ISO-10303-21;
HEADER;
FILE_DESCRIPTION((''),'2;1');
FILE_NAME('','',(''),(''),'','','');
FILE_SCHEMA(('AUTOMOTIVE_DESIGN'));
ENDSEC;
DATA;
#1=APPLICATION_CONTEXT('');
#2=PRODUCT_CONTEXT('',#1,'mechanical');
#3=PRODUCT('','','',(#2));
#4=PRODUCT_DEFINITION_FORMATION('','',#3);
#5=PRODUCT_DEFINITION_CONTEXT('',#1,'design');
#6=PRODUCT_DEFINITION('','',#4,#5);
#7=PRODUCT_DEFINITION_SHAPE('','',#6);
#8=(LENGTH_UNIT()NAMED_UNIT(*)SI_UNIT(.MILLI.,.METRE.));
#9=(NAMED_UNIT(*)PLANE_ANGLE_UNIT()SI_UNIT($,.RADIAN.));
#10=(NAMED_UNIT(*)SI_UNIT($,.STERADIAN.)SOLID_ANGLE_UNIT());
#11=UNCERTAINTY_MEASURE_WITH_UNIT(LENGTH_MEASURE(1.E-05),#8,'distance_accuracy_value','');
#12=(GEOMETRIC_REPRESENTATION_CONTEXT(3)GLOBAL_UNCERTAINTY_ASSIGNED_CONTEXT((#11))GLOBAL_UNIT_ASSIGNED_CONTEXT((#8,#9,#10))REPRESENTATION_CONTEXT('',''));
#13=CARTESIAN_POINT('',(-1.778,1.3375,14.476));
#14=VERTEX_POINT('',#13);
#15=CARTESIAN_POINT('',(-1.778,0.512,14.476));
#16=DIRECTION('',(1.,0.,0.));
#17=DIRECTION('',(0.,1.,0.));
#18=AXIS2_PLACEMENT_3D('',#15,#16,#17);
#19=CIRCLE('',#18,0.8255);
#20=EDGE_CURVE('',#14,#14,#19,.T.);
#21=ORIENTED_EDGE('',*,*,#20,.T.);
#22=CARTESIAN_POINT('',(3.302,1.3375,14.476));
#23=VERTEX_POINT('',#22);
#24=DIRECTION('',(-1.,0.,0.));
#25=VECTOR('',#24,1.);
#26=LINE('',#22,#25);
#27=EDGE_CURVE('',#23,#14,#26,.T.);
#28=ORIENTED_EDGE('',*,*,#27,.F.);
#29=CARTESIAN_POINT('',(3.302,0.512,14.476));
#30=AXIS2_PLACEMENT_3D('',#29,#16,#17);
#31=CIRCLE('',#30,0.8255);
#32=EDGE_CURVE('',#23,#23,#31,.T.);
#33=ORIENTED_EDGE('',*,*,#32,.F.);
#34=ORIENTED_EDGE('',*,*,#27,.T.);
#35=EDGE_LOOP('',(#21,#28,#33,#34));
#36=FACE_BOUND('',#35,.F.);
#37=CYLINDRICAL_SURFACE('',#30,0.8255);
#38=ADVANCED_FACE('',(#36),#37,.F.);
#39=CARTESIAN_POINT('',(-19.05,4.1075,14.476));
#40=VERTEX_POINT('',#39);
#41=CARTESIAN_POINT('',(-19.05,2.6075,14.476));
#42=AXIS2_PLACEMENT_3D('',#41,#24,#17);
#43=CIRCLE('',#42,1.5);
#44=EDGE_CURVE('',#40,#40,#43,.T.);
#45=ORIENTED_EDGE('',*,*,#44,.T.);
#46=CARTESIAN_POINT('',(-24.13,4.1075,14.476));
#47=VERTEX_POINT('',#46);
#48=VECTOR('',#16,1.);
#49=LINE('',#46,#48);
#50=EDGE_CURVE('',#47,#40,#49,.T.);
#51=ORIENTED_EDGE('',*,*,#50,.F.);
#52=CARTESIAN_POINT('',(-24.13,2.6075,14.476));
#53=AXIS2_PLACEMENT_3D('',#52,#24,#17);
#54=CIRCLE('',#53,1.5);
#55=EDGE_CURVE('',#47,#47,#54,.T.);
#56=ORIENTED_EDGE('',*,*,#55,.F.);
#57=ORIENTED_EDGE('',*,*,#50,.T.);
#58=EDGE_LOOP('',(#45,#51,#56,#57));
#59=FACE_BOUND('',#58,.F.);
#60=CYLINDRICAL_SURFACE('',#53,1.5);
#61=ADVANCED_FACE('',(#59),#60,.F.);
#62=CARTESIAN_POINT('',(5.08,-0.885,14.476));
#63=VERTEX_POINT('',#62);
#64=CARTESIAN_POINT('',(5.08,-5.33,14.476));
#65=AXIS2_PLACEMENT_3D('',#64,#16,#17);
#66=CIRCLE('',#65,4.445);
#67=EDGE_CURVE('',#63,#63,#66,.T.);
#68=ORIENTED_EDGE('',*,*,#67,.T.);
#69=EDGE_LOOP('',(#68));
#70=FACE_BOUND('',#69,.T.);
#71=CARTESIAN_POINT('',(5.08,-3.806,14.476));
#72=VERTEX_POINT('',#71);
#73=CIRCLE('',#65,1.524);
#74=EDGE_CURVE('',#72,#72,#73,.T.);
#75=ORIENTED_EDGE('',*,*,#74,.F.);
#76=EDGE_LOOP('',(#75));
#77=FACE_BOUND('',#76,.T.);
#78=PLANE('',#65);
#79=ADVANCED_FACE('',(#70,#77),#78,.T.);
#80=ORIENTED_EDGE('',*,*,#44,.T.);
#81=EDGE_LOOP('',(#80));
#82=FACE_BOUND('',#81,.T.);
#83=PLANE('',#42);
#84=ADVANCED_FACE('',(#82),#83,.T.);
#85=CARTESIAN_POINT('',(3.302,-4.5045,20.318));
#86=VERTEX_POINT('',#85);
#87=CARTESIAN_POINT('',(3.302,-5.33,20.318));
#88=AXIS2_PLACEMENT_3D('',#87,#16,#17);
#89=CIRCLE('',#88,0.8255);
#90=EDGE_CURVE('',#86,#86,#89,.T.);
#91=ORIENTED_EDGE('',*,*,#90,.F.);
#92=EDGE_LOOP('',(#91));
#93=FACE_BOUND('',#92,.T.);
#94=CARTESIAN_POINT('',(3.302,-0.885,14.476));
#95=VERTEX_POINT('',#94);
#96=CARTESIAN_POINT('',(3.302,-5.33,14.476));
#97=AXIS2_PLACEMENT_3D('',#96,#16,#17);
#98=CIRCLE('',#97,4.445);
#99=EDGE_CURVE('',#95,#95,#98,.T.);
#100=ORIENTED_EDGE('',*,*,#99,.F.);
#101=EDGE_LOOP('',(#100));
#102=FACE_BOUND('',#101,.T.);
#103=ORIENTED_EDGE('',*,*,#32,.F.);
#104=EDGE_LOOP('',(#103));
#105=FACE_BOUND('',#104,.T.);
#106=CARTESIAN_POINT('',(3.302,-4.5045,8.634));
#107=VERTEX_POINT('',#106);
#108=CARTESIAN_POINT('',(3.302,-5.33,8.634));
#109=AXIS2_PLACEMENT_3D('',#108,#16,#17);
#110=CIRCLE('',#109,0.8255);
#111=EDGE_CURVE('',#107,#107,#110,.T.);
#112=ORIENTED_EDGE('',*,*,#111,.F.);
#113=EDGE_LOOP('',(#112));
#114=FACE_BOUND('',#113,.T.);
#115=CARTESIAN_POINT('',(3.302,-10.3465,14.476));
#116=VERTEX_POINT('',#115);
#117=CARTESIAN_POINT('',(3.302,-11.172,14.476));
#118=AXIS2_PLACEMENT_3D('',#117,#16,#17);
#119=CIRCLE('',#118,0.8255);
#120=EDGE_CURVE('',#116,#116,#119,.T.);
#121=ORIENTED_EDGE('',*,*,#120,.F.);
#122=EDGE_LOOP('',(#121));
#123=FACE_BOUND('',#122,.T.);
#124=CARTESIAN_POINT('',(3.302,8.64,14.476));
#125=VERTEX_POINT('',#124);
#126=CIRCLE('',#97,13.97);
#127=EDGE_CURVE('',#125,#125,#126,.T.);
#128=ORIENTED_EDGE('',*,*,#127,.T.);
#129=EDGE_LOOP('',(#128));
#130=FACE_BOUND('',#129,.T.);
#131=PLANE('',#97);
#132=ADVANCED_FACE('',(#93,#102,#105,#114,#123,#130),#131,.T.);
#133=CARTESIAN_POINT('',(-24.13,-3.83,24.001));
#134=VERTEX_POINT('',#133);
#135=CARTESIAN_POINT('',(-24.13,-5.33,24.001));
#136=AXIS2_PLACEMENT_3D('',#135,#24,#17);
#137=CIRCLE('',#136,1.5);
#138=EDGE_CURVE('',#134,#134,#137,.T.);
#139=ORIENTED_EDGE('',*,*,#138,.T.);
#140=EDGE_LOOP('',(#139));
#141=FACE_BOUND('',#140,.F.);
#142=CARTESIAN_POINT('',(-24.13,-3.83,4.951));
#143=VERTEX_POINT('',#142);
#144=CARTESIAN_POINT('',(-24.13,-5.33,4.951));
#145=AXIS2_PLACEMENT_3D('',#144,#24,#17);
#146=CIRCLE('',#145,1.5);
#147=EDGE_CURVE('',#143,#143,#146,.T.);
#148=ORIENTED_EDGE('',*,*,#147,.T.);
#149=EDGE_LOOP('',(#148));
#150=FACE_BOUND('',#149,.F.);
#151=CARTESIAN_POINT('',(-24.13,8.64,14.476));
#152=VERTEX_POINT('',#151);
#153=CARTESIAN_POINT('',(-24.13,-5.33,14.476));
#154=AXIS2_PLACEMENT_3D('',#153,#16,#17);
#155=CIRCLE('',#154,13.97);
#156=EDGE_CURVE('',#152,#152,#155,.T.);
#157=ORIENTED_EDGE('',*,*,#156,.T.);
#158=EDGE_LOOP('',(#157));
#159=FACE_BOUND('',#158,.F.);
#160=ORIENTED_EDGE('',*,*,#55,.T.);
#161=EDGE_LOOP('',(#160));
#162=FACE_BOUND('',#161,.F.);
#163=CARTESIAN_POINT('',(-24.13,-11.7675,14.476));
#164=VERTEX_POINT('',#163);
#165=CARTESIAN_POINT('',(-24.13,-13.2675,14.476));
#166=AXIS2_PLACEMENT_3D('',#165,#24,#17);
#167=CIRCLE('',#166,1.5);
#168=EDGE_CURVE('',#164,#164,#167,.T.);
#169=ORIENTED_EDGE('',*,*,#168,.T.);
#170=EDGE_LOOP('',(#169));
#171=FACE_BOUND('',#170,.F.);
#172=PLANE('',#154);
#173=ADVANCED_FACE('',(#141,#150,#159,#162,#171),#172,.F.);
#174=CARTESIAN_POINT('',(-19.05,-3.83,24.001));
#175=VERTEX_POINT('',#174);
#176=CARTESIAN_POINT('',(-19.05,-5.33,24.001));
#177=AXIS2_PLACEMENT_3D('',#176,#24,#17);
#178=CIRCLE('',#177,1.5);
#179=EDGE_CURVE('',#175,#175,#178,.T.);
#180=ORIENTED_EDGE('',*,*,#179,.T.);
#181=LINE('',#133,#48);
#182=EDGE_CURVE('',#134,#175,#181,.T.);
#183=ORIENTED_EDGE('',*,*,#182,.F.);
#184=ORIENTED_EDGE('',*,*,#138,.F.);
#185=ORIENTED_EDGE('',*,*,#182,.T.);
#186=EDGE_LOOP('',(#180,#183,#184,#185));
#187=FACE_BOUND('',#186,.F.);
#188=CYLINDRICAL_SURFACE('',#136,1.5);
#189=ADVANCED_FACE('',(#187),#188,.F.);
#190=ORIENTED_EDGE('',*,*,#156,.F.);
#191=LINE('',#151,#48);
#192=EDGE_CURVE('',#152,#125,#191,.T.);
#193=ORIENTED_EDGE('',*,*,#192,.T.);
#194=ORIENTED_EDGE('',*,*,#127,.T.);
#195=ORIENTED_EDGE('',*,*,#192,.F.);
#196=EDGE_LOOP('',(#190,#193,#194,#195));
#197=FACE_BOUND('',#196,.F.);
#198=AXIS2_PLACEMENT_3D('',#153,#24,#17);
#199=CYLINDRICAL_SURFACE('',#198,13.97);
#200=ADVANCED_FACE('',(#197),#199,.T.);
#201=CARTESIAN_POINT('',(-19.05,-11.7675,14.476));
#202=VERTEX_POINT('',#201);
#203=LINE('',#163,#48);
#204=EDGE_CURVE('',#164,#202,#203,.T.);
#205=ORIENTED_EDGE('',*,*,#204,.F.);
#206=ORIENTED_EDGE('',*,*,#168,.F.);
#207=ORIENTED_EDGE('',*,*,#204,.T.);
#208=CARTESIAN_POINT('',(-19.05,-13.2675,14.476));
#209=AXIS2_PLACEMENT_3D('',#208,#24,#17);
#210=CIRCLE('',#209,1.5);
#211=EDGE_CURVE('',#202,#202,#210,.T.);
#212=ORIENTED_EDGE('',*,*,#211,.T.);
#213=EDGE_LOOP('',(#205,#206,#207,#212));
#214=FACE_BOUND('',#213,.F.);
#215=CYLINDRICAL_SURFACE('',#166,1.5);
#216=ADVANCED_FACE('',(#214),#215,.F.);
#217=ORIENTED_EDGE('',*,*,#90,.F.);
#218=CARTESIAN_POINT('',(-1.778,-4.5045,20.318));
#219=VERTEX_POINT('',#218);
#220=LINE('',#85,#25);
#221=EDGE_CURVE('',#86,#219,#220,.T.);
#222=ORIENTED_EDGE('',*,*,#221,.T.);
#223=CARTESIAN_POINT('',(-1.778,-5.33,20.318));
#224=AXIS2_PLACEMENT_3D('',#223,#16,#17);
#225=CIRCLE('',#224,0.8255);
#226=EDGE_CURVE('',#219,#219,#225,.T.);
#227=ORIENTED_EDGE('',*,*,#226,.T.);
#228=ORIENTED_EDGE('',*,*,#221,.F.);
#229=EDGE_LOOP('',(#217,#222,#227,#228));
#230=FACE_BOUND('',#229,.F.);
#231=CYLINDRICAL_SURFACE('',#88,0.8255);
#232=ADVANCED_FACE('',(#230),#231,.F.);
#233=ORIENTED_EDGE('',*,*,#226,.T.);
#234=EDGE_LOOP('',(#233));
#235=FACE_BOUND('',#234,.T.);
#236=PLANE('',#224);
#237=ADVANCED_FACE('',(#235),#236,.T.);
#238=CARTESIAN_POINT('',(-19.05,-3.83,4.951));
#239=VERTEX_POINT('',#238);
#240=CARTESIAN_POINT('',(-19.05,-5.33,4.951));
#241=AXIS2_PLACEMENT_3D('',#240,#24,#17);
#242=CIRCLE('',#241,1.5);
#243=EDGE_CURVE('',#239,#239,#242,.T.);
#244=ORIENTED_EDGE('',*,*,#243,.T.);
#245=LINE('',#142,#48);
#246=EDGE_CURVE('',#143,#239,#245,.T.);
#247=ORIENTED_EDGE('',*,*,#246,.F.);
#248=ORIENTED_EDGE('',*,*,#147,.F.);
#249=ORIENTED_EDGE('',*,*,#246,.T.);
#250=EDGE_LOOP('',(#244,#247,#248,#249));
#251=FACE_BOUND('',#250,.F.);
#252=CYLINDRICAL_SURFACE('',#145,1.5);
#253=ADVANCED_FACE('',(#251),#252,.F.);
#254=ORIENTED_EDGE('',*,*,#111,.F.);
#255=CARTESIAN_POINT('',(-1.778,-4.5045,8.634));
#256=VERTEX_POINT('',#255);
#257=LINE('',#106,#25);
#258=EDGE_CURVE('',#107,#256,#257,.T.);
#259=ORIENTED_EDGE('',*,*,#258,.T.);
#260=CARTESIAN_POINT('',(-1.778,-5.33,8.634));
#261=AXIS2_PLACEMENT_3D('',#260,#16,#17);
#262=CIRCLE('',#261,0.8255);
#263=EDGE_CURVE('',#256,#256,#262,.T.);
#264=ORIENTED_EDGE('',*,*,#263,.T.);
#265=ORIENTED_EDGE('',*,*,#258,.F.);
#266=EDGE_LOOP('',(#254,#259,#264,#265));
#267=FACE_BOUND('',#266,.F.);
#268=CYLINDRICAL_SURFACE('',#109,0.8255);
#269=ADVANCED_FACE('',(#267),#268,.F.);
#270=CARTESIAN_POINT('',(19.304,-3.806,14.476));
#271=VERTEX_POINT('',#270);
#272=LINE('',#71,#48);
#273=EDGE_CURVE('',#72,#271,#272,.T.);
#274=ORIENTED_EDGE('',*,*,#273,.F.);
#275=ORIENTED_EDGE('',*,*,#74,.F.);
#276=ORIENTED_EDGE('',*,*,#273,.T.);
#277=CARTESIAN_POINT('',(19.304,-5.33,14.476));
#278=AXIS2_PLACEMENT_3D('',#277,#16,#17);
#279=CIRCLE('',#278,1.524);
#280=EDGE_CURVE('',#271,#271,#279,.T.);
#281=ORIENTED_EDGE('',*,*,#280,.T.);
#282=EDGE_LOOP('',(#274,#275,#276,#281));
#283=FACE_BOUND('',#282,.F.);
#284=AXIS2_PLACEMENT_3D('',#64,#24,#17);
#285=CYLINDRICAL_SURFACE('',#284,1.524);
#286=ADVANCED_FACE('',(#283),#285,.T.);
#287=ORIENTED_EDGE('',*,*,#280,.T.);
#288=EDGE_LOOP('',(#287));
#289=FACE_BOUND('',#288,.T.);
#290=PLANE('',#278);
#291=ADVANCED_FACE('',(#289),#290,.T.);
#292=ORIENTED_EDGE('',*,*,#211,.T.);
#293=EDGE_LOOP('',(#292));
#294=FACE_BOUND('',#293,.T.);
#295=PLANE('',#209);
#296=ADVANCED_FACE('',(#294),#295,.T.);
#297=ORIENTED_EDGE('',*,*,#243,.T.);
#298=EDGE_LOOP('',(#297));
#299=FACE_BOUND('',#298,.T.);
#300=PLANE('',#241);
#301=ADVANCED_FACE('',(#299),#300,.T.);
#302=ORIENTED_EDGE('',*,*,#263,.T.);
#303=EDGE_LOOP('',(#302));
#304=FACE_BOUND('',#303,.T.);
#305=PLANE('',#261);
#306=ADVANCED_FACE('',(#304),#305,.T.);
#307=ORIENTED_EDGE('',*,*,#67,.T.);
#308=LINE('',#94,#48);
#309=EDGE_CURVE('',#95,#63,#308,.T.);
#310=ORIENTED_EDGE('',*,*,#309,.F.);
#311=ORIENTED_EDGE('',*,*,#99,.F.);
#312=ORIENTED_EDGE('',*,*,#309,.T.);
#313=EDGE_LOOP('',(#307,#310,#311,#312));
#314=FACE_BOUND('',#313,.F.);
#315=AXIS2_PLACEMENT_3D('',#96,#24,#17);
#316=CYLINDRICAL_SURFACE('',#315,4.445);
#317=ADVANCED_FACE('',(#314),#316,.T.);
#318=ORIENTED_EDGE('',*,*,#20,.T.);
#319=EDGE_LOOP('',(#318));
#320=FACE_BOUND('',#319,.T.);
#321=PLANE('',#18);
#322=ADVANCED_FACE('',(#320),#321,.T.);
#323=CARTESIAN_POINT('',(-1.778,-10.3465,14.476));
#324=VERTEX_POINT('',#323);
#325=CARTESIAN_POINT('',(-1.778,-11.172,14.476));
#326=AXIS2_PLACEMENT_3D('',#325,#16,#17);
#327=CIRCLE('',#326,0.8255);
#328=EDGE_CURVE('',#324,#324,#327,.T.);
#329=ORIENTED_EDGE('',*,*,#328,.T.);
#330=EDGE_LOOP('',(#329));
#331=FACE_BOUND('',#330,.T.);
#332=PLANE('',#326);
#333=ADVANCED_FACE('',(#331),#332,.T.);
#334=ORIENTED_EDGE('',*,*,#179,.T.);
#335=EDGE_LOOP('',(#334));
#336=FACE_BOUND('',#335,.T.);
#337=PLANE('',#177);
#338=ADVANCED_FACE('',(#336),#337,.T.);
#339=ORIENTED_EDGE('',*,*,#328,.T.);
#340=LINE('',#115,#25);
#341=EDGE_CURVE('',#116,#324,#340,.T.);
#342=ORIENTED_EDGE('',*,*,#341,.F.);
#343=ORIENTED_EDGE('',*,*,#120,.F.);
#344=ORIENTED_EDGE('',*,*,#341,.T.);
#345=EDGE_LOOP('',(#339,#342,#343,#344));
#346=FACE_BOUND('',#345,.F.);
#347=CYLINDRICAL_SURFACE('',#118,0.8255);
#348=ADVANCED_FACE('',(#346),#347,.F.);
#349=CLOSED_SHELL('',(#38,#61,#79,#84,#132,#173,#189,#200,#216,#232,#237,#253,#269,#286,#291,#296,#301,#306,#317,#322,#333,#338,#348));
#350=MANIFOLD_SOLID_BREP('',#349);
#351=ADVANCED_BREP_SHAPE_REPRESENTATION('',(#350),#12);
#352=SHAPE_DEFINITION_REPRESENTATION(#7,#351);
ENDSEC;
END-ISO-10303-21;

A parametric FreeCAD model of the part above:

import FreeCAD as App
import Part
import Sketcher
from FreeCAD import Vector
Q = App.Units.Quantity

doc = App.newDocument("Part")
body = doc.addObject("PartDesign::Body", "Body")

sketch1 = body.newObject("Sketcher::SketchObject", "Sketch")
sketch1.AttachmentSupport = (doc.getObject("YZ_Plane"), [""])
sketch1.MapMode = "FlatFace"
sketch1.addGeometry(Part.Circle(Vector(0, 0, 0), Vector(0, 0, 1), 14), False)
sketch1.addConstraint([
    Sketcher.Constraint("Coincident", 0, 3, -1, 1),
    Sketcher.Constraint("Diameter", 0, Q("1.1 in")),
])
pad1 = body.newObject("PartDesign::Pad", "Pad")
pad1.Profile = sketch1
pad1.Length = Q("1.08 in")

sketch2 = body.newObject("Sketcher::SketchObject", "Sketch001")
sketch2.AttachmentSupport = (doc.getObject("YZ_Plane"), [""])
sketch2.MapMode = "FlatFace"
sketch2.AttachmentOffset = App.Placement(Vector(0, 0, 1.08 * 25.4), App.Rotation())
sketch2.addGeometry(Part.Circle(Vector(0, 0, 0), Vector(0, 0, 1), 4.4), False)
sketch2.addConstraint([
    Sketcher.Constraint("Coincident", 0, 3, -1, 1),
    Sketcher.Constraint("Diameter", 0, Q("0.35 in")),
])
pad2 = body.newObject("PartDesign::Pad", "Pad001")
pad2.Profile = sketch2
pad2.Length = Q("0.07 in")

sketch3 = body.newObject("Sketcher::SketchObject", "Sketch002")
sketch3.AttachmentSupport = (doc.getObject("YZ_Plane"), [""])
sketch3.MapMode = "FlatFace"
sketch3.AttachmentOffset = App.Placement(Vector(0, 0, 1.15 * 25.4), App.Rotation())
sketch3.addGeometry(Part.Circle(Vector(0, 0, 0), Vector(0, 0, 1), 1.5), False)
sketch3.addConstraint([
    Sketcher.Constraint("Coincident", 0, 3, -1, 1),
    Sketcher.Constraint("Diameter", 0, Q("0.12 in")),
])
pad3 = body.newObject("PartDesign::Pad", "Pad002")
pad3.Profile = sketch3
pad3.Length = Q("0.56 in")

sketch4 = body.newObject("Sketcher::SketchObject", "Sketch003")
sketch4.AttachmentSupport = (doc.getObject("YZ_Plane"), [""])
sketch4.MapMode = "FlatFace"
sketch4.AttachmentOffset = App.Placement(Vector(0, 0, 1.08 * 25.4), App.Rotation())
sketch4.addGeometry([
    Part.Circle(Vector(0, 5.8, 0), Vector(0, 0, 1), 0.8),
    Part.Circle(Vector(5.8, 0, 0), Vector(0, 0, 1), 0.8),
    Part.Circle(Vector(0, -5.8, 0), Vector(0, 0, 1), 0.8),
    Part.Circle(Vector(-5.8, 0, 0), Vector(0, 0, 1), 0.8),
], False)
sketch4.addConstraint([
    Sketcher.Constraint("Equal", 0, 1),
    Sketcher.Constraint("Equal", 1, 2),
    Sketcher.Constraint("Equal", 2, 3),
    Sketcher.Constraint("Symmetric", 0, 3, 2, 3, -1, 1),
    Sketcher.Constraint("Symmetric", 1, 3, 3, 3, -1, 1),
    Sketcher.Constraint("PointOnObject", 0, 3, -2),
    Sketcher.Constraint("PointOnObject", 1, 3, -1),
    Sketcher.Constraint("Diameter", 0, Q("0.065 in")),
    Sketcher.Constraint("DistanceY", -1, 1, 0, 3, Q("0.23 in")),
    Sketcher.Constraint("DistanceX", -1, 1, 1, 3, Q("0.23 in")),
])
pocket1 = body.newObject("PartDesign::Pocket", "Pocket")
pocket1.Profile = sketch4
pocket1.Length = Q("0.2 in")

sketch5 = body.newObject("Sketcher::SketchObject", "Sketch004")
sketch5.AttachmentSupport = (doc.getObject("YZ_Plane"), [""])
sketch5.MapMode = "FlatFace"
sketch5.addGeometry([
    Part.Circle(Vector(0, -9.5, 0), Vector(0, 0, 1), 1.5),
    Part.Circle(Vector(7.9, 0, 0), Vector(0, 0, 1), 1.5),
    Part.Circle(Vector(0, 9.5, 0), Vector(0, 0, 1), 1.5),
    Part.Circle(Vector(-7.9, 0, 0), Vector(0, 0, 1), 1.5),
], False)
sketch5.addConstraint([
    Sketcher.Constraint("Equal", 0, 1),
    Sketcher.Constraint("Equal", 1, 2),
    Sketcher.Constraint("Equal", 2, 3),
    Sketcher.Constraint("Symmetric", 0, 3, 2, 3, -1, 1),
    Sketcher.Constraint("Symmetric", 1, 3, 3, 3, -1, 1),
    Sketcher.Constraint("PointOnObject", 0, 3, -2),
    Sketcher.Constraint("PointOnObject", 1, 3, -1),
    Sketcher.Constraint("Diameter", 0, Q("3 mm")),
    Sketcher.Constraint("DistanceY", 0, 3, 2, 3, Q("0.75 in")),
    Sketcher.Constraint("DistanceX", -1, 1, 1, 3, Q("0.3125 in")),
])
pocket2 = body.newObject("PartDesign::Pocket", "Pocket001")
pocket2.Profile = sketch5
pocket2.Length = Q("0.2 in")
pocket2.Reversed = True
body2 = doc.addObject("PartDesign::Body", "Body001")
doc.recompute()

body.Placement = App.Placement(Vector(-24.13, -5.33, 14.476), App.Rotation(Vector(0, 0, 1), 0))
boolean = body2.newObject("PartDesign::Boolean", "Boolean")
boolean.Type = "Fuse"
boolean.addObjects([body])

doc.recompute()
